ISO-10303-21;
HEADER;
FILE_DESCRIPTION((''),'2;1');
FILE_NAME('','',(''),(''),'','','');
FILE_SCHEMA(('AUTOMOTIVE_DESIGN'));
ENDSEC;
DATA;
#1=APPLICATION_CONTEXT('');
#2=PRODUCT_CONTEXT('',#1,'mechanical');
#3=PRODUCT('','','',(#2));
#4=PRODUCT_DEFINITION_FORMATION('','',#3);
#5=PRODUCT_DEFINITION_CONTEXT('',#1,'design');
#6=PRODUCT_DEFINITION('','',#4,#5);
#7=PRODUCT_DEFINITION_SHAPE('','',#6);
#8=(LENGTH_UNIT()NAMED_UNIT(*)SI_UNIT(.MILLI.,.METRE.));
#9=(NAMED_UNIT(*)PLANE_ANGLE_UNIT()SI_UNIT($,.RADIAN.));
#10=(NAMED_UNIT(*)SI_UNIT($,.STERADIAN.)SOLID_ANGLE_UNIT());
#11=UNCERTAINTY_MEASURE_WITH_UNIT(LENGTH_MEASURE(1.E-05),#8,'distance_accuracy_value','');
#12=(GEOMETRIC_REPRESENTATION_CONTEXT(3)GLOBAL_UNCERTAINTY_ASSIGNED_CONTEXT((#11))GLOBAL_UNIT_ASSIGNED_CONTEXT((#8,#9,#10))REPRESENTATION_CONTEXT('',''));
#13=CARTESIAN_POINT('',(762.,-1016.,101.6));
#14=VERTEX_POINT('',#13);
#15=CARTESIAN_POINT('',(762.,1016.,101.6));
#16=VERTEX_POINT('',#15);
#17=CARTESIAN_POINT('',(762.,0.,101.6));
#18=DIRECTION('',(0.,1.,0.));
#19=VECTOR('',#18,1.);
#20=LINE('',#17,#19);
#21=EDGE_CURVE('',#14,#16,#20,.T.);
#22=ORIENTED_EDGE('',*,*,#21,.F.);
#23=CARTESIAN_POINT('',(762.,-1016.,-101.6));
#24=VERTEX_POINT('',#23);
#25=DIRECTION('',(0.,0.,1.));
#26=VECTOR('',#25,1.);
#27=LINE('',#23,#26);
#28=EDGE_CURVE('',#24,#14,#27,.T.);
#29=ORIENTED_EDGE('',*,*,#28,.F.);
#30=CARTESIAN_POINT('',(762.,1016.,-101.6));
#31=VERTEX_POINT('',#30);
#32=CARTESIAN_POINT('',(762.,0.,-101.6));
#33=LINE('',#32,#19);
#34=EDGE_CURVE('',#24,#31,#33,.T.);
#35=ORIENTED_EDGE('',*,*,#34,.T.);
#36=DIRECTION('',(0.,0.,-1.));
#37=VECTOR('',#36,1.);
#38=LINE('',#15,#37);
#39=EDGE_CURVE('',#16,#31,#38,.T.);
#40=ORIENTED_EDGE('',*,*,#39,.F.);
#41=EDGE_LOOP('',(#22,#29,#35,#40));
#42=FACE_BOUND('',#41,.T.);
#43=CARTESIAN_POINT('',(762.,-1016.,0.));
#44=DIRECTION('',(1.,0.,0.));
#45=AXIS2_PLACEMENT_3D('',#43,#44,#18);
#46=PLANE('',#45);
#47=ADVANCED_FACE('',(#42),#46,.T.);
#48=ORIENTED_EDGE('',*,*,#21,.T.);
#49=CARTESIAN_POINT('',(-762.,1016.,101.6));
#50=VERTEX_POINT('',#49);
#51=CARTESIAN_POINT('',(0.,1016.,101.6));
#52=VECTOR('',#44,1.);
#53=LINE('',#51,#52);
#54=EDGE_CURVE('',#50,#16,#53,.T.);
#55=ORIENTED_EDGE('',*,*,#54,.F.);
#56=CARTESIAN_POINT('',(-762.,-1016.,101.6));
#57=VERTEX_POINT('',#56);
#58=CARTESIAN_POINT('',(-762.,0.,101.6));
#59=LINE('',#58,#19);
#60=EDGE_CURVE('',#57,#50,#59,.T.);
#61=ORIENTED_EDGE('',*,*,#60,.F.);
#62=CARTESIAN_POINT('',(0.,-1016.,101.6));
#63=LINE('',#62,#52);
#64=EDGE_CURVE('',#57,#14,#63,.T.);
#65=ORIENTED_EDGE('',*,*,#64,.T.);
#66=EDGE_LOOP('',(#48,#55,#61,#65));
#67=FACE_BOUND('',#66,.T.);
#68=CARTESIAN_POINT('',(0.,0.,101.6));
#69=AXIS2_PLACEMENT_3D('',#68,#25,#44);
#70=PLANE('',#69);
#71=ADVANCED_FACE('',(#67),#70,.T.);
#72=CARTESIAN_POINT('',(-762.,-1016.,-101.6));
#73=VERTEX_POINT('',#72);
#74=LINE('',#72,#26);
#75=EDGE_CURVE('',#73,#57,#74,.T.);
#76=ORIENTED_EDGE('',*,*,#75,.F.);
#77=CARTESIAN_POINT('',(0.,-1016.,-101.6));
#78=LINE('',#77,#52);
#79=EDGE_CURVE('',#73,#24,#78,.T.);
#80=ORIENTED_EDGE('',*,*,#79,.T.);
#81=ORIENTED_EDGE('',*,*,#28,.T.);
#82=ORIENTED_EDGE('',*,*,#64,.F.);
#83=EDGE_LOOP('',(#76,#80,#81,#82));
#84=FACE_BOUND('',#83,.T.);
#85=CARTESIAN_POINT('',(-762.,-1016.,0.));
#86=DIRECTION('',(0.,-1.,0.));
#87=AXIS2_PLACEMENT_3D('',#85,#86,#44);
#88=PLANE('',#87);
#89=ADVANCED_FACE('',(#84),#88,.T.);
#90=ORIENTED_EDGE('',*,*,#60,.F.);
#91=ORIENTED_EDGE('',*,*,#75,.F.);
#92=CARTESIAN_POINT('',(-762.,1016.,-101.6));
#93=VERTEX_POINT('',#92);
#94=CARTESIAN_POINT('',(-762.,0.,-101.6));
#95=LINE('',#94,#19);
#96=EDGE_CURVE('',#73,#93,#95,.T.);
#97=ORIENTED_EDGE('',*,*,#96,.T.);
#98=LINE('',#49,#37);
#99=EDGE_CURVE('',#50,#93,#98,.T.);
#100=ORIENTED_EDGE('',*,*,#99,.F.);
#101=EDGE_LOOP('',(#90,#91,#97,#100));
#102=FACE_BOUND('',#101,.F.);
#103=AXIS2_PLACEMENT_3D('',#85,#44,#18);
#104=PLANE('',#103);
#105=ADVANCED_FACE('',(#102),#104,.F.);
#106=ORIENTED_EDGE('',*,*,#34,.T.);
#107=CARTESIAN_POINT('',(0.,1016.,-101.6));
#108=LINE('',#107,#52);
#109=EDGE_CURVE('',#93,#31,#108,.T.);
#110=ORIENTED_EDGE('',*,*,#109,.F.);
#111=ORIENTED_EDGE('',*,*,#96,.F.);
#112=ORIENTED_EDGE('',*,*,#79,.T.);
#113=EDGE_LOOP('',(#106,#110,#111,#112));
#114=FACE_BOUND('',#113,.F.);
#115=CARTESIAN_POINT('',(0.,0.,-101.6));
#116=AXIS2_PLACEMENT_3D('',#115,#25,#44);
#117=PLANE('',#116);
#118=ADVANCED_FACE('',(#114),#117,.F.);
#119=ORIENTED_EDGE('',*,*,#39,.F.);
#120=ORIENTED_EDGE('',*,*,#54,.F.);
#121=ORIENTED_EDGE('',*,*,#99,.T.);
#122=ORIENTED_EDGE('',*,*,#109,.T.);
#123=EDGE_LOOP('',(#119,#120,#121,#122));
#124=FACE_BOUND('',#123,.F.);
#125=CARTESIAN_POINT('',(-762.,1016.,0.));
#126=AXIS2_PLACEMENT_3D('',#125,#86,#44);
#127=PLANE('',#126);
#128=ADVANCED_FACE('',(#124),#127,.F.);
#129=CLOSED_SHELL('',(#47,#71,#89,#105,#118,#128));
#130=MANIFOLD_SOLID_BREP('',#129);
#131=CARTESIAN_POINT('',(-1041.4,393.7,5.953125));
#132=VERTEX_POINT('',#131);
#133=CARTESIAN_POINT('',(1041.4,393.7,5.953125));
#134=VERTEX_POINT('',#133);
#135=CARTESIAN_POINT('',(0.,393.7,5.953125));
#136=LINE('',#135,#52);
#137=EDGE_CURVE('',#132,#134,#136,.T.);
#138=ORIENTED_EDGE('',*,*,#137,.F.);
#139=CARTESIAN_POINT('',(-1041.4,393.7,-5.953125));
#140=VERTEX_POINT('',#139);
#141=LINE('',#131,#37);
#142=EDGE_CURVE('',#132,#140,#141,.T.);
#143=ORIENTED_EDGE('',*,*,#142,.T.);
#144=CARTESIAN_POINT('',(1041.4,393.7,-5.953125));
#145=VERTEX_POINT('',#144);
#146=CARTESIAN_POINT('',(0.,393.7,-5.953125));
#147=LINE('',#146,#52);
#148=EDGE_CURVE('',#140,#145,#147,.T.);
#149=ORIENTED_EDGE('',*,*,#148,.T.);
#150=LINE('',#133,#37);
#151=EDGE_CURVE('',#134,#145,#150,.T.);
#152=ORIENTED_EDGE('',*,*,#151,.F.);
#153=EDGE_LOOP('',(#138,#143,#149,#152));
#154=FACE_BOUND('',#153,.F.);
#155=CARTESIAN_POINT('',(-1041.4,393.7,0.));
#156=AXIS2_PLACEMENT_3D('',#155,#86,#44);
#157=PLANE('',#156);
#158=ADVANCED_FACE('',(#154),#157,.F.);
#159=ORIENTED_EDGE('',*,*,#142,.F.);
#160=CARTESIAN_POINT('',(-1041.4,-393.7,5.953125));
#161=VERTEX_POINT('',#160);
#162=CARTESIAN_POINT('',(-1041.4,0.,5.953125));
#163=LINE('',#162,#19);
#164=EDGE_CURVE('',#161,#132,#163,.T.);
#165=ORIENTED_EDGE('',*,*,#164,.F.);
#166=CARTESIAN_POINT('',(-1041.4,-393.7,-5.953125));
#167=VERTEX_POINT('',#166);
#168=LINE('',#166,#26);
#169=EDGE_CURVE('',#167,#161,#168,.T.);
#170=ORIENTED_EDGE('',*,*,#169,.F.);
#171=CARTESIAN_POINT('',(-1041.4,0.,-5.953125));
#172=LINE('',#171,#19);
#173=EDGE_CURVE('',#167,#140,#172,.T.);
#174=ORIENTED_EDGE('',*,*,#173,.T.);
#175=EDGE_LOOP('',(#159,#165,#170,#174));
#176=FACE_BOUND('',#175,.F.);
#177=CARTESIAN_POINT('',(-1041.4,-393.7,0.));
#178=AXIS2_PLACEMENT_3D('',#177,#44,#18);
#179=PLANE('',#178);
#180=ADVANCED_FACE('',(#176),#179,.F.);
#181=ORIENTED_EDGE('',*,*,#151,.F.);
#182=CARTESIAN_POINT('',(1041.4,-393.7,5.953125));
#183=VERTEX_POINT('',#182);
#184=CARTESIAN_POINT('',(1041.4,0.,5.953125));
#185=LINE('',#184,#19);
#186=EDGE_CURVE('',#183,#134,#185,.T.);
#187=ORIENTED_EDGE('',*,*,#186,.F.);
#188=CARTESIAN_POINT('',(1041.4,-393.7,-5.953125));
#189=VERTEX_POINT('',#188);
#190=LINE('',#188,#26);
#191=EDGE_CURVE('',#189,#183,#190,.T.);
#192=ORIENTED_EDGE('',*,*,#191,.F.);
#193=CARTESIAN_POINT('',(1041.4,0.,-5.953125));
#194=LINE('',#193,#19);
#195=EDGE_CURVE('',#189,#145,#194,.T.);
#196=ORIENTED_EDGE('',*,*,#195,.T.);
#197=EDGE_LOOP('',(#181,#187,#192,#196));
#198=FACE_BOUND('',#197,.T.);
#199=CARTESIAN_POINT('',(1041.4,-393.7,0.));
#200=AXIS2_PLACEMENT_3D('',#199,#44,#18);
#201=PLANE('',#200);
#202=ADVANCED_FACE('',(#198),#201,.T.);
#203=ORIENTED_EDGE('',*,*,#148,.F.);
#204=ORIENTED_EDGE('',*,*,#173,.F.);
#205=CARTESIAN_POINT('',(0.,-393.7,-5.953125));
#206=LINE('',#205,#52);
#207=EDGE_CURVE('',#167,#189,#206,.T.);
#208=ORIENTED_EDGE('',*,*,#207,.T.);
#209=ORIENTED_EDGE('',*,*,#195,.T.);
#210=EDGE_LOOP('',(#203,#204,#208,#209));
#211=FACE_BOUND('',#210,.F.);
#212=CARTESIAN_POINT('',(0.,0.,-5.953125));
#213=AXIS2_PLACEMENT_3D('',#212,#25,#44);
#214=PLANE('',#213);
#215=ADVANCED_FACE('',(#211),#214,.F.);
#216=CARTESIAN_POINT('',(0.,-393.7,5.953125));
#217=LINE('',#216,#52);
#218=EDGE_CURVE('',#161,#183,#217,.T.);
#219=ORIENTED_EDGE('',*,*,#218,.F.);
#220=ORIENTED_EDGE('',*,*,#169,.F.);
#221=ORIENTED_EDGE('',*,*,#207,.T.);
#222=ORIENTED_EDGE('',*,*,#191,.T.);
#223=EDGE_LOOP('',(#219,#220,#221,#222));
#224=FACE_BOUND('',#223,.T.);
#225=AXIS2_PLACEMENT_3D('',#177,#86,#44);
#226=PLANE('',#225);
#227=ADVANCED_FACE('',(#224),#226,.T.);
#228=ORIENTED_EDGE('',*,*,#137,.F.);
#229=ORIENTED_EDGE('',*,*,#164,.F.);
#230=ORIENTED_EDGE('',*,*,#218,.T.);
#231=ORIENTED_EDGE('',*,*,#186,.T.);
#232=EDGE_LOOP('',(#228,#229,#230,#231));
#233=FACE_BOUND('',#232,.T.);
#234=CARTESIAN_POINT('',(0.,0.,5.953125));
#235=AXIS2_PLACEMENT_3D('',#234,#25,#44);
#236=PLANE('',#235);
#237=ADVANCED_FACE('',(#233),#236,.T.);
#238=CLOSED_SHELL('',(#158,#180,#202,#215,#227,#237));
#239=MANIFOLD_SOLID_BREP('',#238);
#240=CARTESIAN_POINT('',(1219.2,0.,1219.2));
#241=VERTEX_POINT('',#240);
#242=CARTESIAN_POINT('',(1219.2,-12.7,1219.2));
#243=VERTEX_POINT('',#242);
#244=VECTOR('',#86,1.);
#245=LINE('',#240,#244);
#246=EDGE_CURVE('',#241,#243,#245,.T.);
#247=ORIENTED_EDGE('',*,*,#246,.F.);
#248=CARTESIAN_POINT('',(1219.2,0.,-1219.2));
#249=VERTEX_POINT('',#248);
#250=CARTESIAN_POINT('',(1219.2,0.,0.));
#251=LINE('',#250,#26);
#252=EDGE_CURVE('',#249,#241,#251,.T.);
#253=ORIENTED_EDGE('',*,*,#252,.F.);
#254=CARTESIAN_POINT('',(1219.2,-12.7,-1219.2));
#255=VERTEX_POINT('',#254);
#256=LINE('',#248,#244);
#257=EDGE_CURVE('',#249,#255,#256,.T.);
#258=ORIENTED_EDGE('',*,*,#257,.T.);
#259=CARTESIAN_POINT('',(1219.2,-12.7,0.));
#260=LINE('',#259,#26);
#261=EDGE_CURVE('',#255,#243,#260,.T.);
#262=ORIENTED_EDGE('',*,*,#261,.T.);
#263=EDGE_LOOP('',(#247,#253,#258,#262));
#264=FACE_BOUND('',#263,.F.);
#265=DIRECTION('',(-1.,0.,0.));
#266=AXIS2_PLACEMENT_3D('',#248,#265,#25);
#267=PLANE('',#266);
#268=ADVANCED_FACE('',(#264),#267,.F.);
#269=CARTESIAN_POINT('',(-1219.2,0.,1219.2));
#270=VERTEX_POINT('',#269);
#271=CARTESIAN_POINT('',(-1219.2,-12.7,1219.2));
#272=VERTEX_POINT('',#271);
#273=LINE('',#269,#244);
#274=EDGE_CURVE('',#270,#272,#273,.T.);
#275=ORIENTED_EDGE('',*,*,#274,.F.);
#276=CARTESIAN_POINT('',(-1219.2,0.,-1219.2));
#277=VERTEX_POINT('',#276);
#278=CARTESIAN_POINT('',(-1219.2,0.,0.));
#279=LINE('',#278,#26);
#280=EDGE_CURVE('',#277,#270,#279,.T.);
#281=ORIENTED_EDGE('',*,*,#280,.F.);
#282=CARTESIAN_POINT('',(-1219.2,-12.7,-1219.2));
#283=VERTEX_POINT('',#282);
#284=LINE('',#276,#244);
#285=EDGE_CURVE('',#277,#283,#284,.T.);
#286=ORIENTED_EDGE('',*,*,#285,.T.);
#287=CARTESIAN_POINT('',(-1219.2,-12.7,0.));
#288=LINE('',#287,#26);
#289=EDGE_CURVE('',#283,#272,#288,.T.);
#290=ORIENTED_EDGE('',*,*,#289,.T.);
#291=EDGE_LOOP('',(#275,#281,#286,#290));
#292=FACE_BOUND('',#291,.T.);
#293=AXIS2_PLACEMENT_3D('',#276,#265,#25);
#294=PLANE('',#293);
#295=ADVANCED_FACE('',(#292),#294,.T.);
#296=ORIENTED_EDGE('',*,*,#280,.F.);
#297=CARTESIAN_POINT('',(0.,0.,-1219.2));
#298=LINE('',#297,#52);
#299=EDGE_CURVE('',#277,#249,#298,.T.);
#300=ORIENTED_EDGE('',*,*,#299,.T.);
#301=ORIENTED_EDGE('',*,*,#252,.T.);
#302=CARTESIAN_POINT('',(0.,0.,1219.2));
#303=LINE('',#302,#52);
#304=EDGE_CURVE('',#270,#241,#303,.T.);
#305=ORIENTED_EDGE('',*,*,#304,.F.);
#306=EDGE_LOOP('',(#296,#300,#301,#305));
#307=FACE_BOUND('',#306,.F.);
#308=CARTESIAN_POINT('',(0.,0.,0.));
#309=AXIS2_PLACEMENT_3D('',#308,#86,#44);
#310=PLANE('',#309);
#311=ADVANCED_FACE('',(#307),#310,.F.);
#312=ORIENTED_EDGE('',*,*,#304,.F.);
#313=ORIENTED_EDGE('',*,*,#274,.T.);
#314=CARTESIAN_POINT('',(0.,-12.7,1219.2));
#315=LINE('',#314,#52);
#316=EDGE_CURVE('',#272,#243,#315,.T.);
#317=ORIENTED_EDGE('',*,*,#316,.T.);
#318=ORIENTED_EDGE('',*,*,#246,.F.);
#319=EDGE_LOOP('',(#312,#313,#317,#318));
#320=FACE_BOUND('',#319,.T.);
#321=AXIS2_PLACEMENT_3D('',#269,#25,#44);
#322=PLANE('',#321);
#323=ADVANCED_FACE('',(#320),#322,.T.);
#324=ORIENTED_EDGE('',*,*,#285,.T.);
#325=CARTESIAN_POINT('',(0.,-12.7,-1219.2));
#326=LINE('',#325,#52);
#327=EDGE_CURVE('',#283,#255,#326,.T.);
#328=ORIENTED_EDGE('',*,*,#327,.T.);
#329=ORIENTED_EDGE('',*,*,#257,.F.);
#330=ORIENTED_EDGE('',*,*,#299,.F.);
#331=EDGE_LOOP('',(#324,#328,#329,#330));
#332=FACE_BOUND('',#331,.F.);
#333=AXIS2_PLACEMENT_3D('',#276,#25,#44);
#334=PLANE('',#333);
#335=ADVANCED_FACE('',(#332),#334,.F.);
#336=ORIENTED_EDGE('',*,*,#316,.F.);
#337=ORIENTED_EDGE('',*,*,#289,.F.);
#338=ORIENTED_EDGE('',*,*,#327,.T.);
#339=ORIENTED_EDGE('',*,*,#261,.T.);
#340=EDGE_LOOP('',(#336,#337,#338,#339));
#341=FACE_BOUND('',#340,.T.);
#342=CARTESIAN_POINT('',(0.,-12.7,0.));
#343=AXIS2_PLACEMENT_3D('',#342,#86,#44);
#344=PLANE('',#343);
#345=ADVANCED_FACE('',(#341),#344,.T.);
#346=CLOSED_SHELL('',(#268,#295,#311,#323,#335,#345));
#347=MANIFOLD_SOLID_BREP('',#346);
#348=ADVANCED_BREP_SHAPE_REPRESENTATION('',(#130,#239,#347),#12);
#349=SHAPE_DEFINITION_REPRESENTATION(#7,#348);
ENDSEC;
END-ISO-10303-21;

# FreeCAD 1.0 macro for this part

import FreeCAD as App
import Part
import Sketcher
Q = App.Units.Quantity

doc = App.newDocument("Part")
body = doc.addObject("PartDesign::Body", "Body")

# Sketch on XY plane
sketch1 = doc.addObject("Sketcher::SketchObject", "Sketch")
body.addObject(sketch1)
sketch1.AttachmentSupport = (doc.XY_Plane, [""])
sketch1.MapMode = "FlatFace"
sketch1.addGeometry(Part.LineSegment(App.Vector(-1041, 394, 0), App.Vector(-1041, -394, 0)), False)
sketch1.addGeometry(Part.LineSegment(App.Vector(-1041, -394, 0), App.Vector(1041, -394, 0)), False)
sketch1.addGeometry(Part.LineSegment(App.Vector(1041, -394, 0), App.Vector(1041, 394, 0)), False)
sketch1.addGeometry(Part.LineSegment(App.Vector(1041, 394, 0), App.Vector(-1041, 394, 0)), False)
sketch1.addConstraint(Sketcher.Constraint("Coincident", 0, 2, 1, 1))
sketch1.addConstraint(Sketcher.Constraint("Coincident", 1, 2, 2, 1))
sketch1.addConstraint(Sketcher.Constraint("Coincident", 2, 2, 3, 1))
sketch1.addConstraint(Sketcher.Constraint("Coincident", 3, 2, 0, 1))
sketch1.addConstraint(Sketcher.Constraint("Vertical", 0))
sketch1.addConstraint(Sketcher.Constraint("Horizontal", 1))
sketch1.addConstraint(Sketcher.Constraint("Vertical", 2))
sketch1.addConstraint(Sketcher.Constraint("Horizontal", 3))
sketch1.addConstraint(Sketcher.Constraint("Symmetric", 0, 2, 2, 2, -1, 1))
sketch1.addConstraint(Sketcher.Constraint("DistanceX", 1, 1, 1, 2, Q("82 in")))
sketch1.addConstraint(Sketcher.Constraint("DistanceY", 0, 2, 0, 1, Q("31 in")))
pad1 = doc.addObject("PartDesign::Pad", "Pad")
body.addObject(pad1)
pad1.Profile = sketch1
pad1.Length = Q("0.46875 in")
pad1.Midplane = True
body2 = doc.addObject("PartDesign::Body", "Body001")

# Sketch on XY plane
sketch2 = doc.addObject("Sketcher::SketchObject", "Sketch001")
body2.addObject(sketch2)
sketch2.AttachmentSupport = (doc.getObject("XY_Plane001"), [""])
sketch2.MapMode = "FlatFace"
sketch2.addGeometry(Part.LineSegment(App.Vector(-762, 1016, 0), App.Vector(-762, -1016, 0)), False)
sketch2.addGeometry(Part.LineSegment(App.Vector(-762, -1016, 0), App.Vector(762, -1016, 0)), False)
sketch2.addGeometry(Part.LineSegment(App.Vector(762, -1016, 0), App.Vector(762, 1016, 0)), False)
sketch2.addGeometry(Part.LineSegment(App.Vector(762, 1016, 0), App.Vector(-762, 1016, 0)), False)
sketch2.addConstraint(Sketcher.Constraint("Coincident", 0, 2, 1, 1))
sketch2.addConstraint(Sketcher.Constraint("Coincident", 1, 2, 2, 1))
sketch2.addConstraint(Sketcher.Constraint("Coincident", 2, 2, 3, 1))
sketch2.addConstraint(Sketcher.Constraint("Coincident", 3, 2, 0, 1))
sketch2.addConstraint(Sketcher.Constraint("Vertical", 0))
sketch2.addConstraint(Sketcher.Constraint("Horizontal", 1))
sketch2.addConstraint(Sketcher.Constraint("Vertical", 2))
sketch2.addConstraint(Sketcher.Constraint("Horizontal", 3))
sketch2.addConstraint(Sketcher.Constraint("Symmetric", 0, 2, 2, 2, -1, 1))
sketch2.addConstraint(Sketcher.Constraint("DistanceX", 1, 1, 1, 2, Q("60 in")))
sketch2.addConstraint(Sketcher.Constraint("DistanceY", 0, 2, 0, 1, Q("80 in")))
pad2 = doc.addObject("PartDesign::Pad", "Pad001")
body2.addObject(pad2)
pad2.Profile = sketch2
pad2.Length = Q("8 in")
pad2.Midplane = True
body3 = doc.addObject("PartDesign::Body", "Body002")

# Sketch on XZ plane
sketch3 = doc.addObject("Sketcher::SketchObject", "Sketch002")
body3.addObject(sketch3)
sketch3.AttachmentSupport = (doc.getObject("XZ_Plane002"), [""])
sketch3.MapMode = "FlatFace"
sketch3.addGeometry(Part.LineSegment(App.Vector(-1219, 1219, 0), App.Vector(-1219, -1219, 0)), False)
sketch3.addGeometry(Part.LineSegment(App.Vector(-1219, -1219, 0), App.Vector(1219, -1219, 0)), False)
sketch3.addGeometry(Part.LineSegment(App.Vector(1219, -1219, 0), App.Vector(1219, 1219, 0)), False)
sketch3.addGeometry(Part.LineSegment(App.Vector(1219, 1219, 0), App.Vector(-1219, 1219, 0)), False)
sketch3.addConstraint(Sketcher.Constraint("Coincident", 0, 2, 1, 1))
sketch3.addConstraint(Sketcher.Constraint("Coincident", 1, 2, 2, 1))
sketch3.addConstraint(Sketcher.Constraint("Coincident", 2, 2, 3, 1))
sketch3.addConstraint(Sketcher.Constraint("Coincident", 3, 2, 0, 1))
sketch3.addConstraint(Sketcher.Constraint("Vertical", 0))
sketch3.addConstraint(Sketcher.Constraint("Horizontal", 1))
sketch3.addConstraint(Sketcher.Constraint("Vertical", 2))
sketch3.addConstraint(Sketcher.Constraint("Horizontal", 3))
sketch3.addConstraint(Sketcher.Constraint("Symmetric", 0, 2, 2, 2, -1, 1))
sketch3.addConstraint(Sketcher.Constraint("Equal", 3, 0))
sketch3.addConstraint(Sketcher.Constraint("DistanceX", 1, 1, 1, 2, Q("96 in")))
pad3 = doc.addObject("PartDesign::Pad", "Pad002")
body3.addObject(pad3)
pad3.Profile = sketch3
pad3.Length = Q("0.5 in")

doc.recompute()
